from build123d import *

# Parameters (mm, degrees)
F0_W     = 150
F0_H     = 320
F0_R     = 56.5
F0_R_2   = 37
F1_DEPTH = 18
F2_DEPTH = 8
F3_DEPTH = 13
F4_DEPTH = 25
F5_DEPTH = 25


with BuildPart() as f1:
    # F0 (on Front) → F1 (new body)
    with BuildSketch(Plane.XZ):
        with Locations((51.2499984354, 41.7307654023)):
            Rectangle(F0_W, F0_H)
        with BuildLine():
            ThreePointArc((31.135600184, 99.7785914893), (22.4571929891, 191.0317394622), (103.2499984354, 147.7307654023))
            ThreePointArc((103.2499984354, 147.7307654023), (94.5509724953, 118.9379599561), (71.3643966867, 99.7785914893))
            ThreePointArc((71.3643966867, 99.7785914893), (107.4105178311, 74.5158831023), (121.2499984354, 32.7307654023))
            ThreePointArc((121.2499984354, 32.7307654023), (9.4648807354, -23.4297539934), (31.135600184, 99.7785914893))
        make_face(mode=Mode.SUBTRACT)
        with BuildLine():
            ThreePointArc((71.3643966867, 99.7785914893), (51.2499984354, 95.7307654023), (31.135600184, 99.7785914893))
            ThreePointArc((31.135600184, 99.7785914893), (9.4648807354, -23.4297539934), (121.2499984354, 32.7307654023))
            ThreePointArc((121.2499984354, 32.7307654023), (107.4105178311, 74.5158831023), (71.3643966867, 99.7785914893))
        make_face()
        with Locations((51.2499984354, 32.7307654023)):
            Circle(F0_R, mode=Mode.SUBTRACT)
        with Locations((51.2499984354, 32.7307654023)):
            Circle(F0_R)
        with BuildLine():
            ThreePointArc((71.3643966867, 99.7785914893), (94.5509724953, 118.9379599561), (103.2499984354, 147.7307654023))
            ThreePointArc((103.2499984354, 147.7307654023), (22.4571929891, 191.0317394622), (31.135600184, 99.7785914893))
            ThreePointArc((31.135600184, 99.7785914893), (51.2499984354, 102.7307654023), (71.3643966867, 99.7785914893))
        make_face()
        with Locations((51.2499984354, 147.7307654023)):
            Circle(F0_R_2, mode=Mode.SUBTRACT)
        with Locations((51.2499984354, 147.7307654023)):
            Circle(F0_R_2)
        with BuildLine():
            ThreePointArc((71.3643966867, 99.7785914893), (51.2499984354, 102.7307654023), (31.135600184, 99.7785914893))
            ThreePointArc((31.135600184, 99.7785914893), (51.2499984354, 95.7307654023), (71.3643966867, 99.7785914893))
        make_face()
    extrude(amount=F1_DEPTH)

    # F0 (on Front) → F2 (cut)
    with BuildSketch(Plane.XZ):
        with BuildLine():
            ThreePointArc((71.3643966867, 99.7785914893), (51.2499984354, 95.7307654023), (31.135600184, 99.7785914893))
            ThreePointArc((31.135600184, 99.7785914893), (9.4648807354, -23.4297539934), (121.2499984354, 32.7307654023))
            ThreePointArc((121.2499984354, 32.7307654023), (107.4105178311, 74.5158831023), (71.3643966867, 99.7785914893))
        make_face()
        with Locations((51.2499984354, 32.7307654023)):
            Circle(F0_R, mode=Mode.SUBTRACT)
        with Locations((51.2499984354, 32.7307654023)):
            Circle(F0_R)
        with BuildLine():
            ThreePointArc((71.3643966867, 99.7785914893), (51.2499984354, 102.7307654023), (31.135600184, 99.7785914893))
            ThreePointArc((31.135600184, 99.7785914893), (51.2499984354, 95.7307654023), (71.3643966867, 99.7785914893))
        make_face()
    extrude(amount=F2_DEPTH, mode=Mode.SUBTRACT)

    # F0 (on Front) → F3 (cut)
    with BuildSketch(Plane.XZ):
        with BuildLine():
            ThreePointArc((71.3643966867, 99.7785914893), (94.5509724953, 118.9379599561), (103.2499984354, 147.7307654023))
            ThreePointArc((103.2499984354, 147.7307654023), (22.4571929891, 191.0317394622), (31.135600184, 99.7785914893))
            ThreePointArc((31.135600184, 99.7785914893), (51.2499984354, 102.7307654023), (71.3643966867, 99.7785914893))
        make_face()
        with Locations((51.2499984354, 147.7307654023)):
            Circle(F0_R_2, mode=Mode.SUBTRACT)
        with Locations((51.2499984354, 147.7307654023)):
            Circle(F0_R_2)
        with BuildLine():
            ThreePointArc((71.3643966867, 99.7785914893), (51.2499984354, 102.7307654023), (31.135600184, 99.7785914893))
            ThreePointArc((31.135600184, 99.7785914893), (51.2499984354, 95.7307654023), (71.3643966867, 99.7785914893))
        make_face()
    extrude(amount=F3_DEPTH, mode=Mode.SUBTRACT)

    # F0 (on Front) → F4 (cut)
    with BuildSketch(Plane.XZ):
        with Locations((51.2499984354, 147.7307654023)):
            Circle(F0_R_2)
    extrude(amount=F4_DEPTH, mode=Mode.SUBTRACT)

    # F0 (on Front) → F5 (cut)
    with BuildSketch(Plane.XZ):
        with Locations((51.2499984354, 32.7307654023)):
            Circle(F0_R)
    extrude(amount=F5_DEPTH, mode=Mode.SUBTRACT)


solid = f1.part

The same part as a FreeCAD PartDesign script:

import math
import FreeCAD as App
import Part
import Sketcher
from FreeCAD import Vector

doc = App.newDocument("Part")
body = doc.addObject("PartDesign::Body", "Body")

sketch1 = body.newObject("Sketcher::SketchObject", "Sketch")
sketch1.AttachmentSupport = (doc.getObject("XZ_Plane"), [""])
sketch1.MapMode = "FlatFace"
sketch1.addGeometry([
    Part.LineSegment(Vector(-23.750002, 201.730765, 0), Vector(-23.750002, -118.269235, 0)),
    Part.LineSegment(Vector(-23.750002, -118.269235, 0), Vector(126.249998, -118.269235, 0)),
    Part.LineSegment(Vector(126.249998, -118.269235, 0), Vector(126.249998, 201.730765, 0)),
    Part.LineSegment(Vector(126.249998, 201.730765, 0), Vector(-23.750002, 201.730765, 0)),
], False)
sketch1.addConstraint([
    Sketcher.Constraint("Coincident", 0, 2, 1, 1),
    Sketcher.Constraint("Coincident", 1, 2, 2, 1),
    Sketcher.Constraint("Coincident", 2, 2, 3, 1),
    Sketcher.Constraint("Coincident", 3, 2, 0, 1),
    Sketcher.Constraint("Vertical", 0),
    Sketcher.Constraint("Horizontal", 1),
    Sketcher.Constraint("Vertical", 2),
    Sketcher.Constraint("Horizontal", 3),
    Sketcher.Constraint("DistanceX", 1, 1, 1, 2, 150.0),
    Sketcher.Constraint("DistanceY", 0, 2, 0, 1, 320.0),
    Sketcher.Constraint("DistanceX", 0, 2, -1, 1, 23.750002),
    Sketcher.Constraint("DistanceY", 0, 2, -1, 1, 118.269235),
])
pad1 = body.newObject("PartDesign::Pad", "Pad")
pad1.Profile = sketch1
pad1.Length = 18

sketch2 = body.newObject("Sketcher::SketchObject", "Sketch001")
sketch2.AttachmentSupport = (doc.getObject("XZ_Plane"), [""])
sketch2.MapMode = "FlatFace"
sketch2.addGeometry([
    Part.ArcOfCircle(Part.Circle(Vector(51.249998, 32.730765, 0), Vector(0, 0, 1), 70), math.radians(106.699284), math.radians(360)),
    Part.ArcOfCircle(Part.Circle(Vector(51.249998, 32.730765, 0), Vector(0, 0, 1), 70), math.radians(0), math.radians(73.300716)),
    Part.ArcOfCircle(Part.Circle(Vector(51.249998, 32.730765, 0), Vector(0, 0, 1), 70), math.radians(73.300716), math.radians(106.699284)),
], False)
sketch2.addConstraint([
    Sketcher.Constraint("Tangent", 0, 2, 1, 1),
    Sketcher.Constraint("Tangent", 1, 2, 2, 1),
    Sketcher.Constraint("Tangent", 2, 2, 0, 1),
    Sketcher.Constraint("Horizontal", 2, 3, 0, 2),
    Sketcher.Constraint("Horizontal", 1, 2, 2, 2),
    Sketcher.Constraint("Radius", 0, 70.0),
    Sketcher.Constraint("DistanceX", -1, 1, 0, 3, 51.249998),
    Sketcher.Constraint("DistanceX", -1, 1, 2, 2, 31.1356),
    Sketcher.Constraint("DistanceY", -1, 1, 1, 2, 99.778591),
])
pocket1 = body.newObject("PartDesign::Pocket", "Pocket")
pocket1.Profile = sketch2
pocket1.Length = 8
pocket1.Reversed = True

sketch3 = body.newObject("Sketcher::SketchObject", "Sketch002")
sketch3.AttachmentSupport = (doc.getObject("XZ_Plane"), [""])
sketch3.MapMode = "FlatFace"
sketch3.addGeometry(Part.Circle(Vector(51.249998, 147.730765, 0), Vector(0, 0, 1), 52), False)
sketch3.addConstraint([
    Sketcher.Constraint("Diameter", 0, 104.0),
    Sketcher.Constraint("DistanceX", -1, 1, 0, 3, 51.249998),
    Sketcher.Constraint("DistanceY", -1, 1, 0, 3, 147.730765),
])
pocket2 = body.newObject("PartDesign::Pocket", "Pocket001")
pocket2.Profile = sketch3
pocket2.Length = 13
pocket2.Reversed = True

sketch4 = body.newObject("Sketcher::SketchObject", "Sketch003")
sketch4.AttachmentSupport = (doc.getObject("XZ_Plane"), [""])
sketch4.MapMode = "FlatFace"
sketch4.addGeometry(Part.Circle(Vector(51.249998, 147.730765, 0), Vector(0, 0, 1), 37), False)
sketch4.addConstraint([
    Sketcher.Constraint("Diameter", 0, 74.0),
    Sketcher.Constraint("DistanceX", -1, 1, 0, 3, 51.249998),
    Sketcher.Constraint("DistanceY", -1, 1, 0, 3, 147.730765),
])
pocket3 = body.newObject("PartDesign::Pocket", "Pocket002")
pocket3.Profile = sketch4
pocket3.Length = 25
pocket3.Reversed = True

sketch5 = body.newObject("Sketcher::SketchObject", "Sketch004")
sketch5.AttachmentSupport = (doc.getObject("XZ_Plane"), [""])
sketch5.MapMode = "FlatFace"
sketch5.addGeometry(Part.Circle(Vector(51.249998, 32.730765, 0), Vector(0, 0, 1), 56.5), False)
sketch5.addConstraint([
    Sketcher.Constraint("Diameter", 0, 113.0),
    Sketcher.Constraint("DistanceX", -1, 1, 0, 3, 51.249998),
    Sketcher.Constraint("DistanceY", -1, 1, 0, 3, 32.730765),
])
pocket4 = body.newObject("PartDesign::Pocket", "Pocket003")
pocket4.Profile = sketch5
pocket4.Length = 25
pocket4.Reversed = True

doc.recompute()
